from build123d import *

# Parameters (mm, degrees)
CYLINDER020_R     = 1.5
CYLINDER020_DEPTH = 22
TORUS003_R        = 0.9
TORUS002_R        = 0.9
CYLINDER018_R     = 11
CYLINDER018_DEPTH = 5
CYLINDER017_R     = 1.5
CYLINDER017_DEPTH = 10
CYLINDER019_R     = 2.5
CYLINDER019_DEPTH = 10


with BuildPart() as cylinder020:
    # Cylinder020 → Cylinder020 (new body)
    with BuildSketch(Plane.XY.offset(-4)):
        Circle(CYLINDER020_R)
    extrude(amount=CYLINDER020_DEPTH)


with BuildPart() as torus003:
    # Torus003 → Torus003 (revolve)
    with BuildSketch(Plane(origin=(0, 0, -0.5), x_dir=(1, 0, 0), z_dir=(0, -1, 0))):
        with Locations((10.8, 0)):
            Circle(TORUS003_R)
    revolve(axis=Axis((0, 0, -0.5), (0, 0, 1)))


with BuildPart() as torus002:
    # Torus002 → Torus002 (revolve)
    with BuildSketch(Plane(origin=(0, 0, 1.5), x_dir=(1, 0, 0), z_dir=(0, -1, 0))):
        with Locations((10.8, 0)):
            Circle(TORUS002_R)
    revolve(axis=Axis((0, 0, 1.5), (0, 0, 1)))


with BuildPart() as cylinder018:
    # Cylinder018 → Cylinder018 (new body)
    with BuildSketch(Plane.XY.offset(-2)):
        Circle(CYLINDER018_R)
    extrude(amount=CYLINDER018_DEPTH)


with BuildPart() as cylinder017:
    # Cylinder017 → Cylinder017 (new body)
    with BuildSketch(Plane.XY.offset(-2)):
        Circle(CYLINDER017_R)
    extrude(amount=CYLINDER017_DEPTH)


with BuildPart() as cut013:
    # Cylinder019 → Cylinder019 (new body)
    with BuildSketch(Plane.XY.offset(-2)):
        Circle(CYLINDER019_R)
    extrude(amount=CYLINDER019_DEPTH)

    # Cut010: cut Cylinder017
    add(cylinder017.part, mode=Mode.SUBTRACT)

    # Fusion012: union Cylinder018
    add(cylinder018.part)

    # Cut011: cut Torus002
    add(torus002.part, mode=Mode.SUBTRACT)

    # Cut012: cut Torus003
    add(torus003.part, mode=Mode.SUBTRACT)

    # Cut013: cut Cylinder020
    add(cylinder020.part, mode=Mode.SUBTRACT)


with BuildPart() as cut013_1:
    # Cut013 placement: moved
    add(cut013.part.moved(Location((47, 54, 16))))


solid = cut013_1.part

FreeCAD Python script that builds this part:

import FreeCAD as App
import Part
import Sketcher

V = App.Vector
Q = App.Units.Quantity

doc = App.newDocument("Part")
params = doc.addObject("Spreadsheet::Sheet", "Params")
for row, (alias, value) in enumerate([
    ("sketch1_diameter", "3 mm"),
    ("pad1_length", "22 mm"),
    ("sketch2_diameter", "1.8 mm"),
    ("revolution_angle", "360 deg"),
    ("sketch3_diameter", "1.8 mm"),
    ("revolution2_angle", "360 deg"),
    ("sketch4_diameter", "22 mm"),
    ("pad2_length", "5 mm"),
    ("sketch5_diameter", "3 mm"),
    ("pad3_length", "10 mm"),
    ("sketch6_diameter", "5 mm"),
    ("pad4_length", "10 mm"),
], start=1):
    params.set(f"A{row}", alias)
    params.set(f"B{row}", "=" + value)
    params.setAlias(f"B{row}", alias)

body = doc.addObject("PartDesign::Body", "Body")

# Sketch on XY plane
sketch1 = body.newObject("Sketcher::SketchObject", "Sketch")
sketch1.AttachmentSupport = (doc.getObject("XY_Plane"), [""])
sketch1.MapMode = "FlatFace"
sketch1.AttachmentOffset = App.Placement(V(0, 0, -4), App.Rotation())
sketch1.addGeometry(Part.Circle(V(0, 0, 0), V(0, 0, 1), 1.5), False)
sketch1.addConstraint(Sketcher.Constraint("Coincident", 0, 3, -1, 1))
sketch1.addConstraint(Sketcher.Constraint("Diameter", 0, Q("3 mm")))
sketch1.setExpression("Constraints[1]", "Params.sketch1_diameter")
pad1 = body.newObject("PartDesign::Pad", "Pad")
pad1.Profile = sketch1
pad1.setExpression("Length", "Params.pad1_length")
body2 = doc.addObject("PartDesign::Body", "Body001")

# Sketch on XZ plane
sketch2 = body2.newObject("Sketcher::SketchObject", "Sketch001")
sketch2.AttachmentSupport = (doc.getObject("XZ_Plane001"), [""])
sketch2.MapMode = "FlatFace"
sketch2.addGeometry(Part.Circle(V(10.8, -0.5, 0), V(0, 0, 1), 0.9), False)
sketch2.addConstraint(Sketcher.Constraint("Diameter", 0, Q("1.8 mm")))
sketch2.addConstraint(Sketcher.Constraint("DistanceX", -1, 1, 0, 3, Q("10.8 mm")))
sketch2.addConstraint(Sketcher.Constraint("DistanceY", 0, 3, -1, 1, Q("0.5 mm")))
sketch2.setExpression("Constraints[0]", "Params.sketch2_diameter")
revolution = body2.newObject("PartDesign::Revolution", "Revolution")
revolution.Profile = sketch2
revolution.ReferenceAxis = (sketch2, ["V_Axis"])
revolution.setExpression("Angle", "Params.revolution_angle")
body3 = doc.addObject("PartDesign::Body", "Body002")

# Sketch on XZ plane
sketch3 = body3.newObject("Sketcher::SketchObject", "Sketch002")
sketch3.AttachmentSupport = (doc.getObject("XZ_Plane002"), [""])
sketch3.MapMode = "FlatFace"
sketch3.addGeometry(Part.Circle(V(10.8, 1.5, 0), V(0, 0, 1), 0.9), False)
sketch3.addConstraint(Sketcher.Constraint("Diameter", 0, Q("1.8 mm")))
sketch3.addConstraint(Sketcher.Constraint("DistanceX", -1, 1, 0, 3, Q("10.8 mm")))
sketch3.addConstraint(Sketcher.Constraint("DistanceY", -1, 1, 0, 3, Q("1.5 mm")))
sketch3.setExpression("Constraints[0]", "Params.sketch3_diameter")
revolution2 = body3.newObject("PartDesign::Revolution", "Revolution001")
revolution2.Profile = sketch3
revolution2.ReferenceAxis = (sketch3, ["V_Axis"])
revolution2.setExpression("Angle", "Params.revolution2_angle")
body4 = doc.addObject("PartDesign::Body", "Body003")

# Sketch on XY plane
sketch4 = body4.newObject("Sketcher::SketchObject", "Sketch003")
sketch4.AttachmentSupport = (doc.getObject("XY_Plane003"), [""])
sketch4.MapMode = "FlatFace"
sketch4.AttachmentOffset = App.Placement(V(0, 0, -2), App.Rotation())
sketch4.addGeometry(Part.Circle(V(0, 0, 0), V(0, 0, 1), 11), False)
sketch4.addConstraint(Sketcher.Constraint("Coincident", 0, 3, -1, 1))
sketch4.addConstraint(Sketcher.Constraint("Diameter", 0, Q("22 mm")))
sketch4.setExpression("Constraints[1]", "Params.sketch4_diameter")
pad2 = body4.newObject("PartDesign::Pad", "Pad001")
pad2.Profile = sketch4
pad2.setExpression("Length", "Params.pad2_length")
body5 = doc.addObject("PartDesign::Body", "Body004")

# Sketch on XY plane
sketch5 = body5.newObject("Sketcher::SketchObject", "Sketch004")
sketch5.AttachmentSupport = (doc.getObject("XY_Plane004"), [""])
sketch5.MapMode = "FlatFace"
sketch5.AttachmentOffset = App.Placement(V(0, 0, -2), App.Rotation())
sketch5.addGeometry(Part.Circle(V(0, 0, 0), V(0, 0, 1), 1.5), False)
sketch5.addConstraint(Sketcher.Constraint("Coincident", 0, 3, -1, 1))
sketch5.addConstraint(Sketcher.Constraint("Diameter", 0, Q("3 mm")))
sketch5.setExpression("Constraints[1]", "Params.sketch5_diameter")
pad3 = body5.newObject("PartDesign::Pad", "Pad002")
pad3.Profile = sketch5
pad3.setExpression("Length", "Params.pad3_length")
body6 = doc.addObject("PartDesign::Body", "Body005")

# Sketch on XY plane
sketch6 = body6.newObject("Sketcher::SketchObject", "Sketch005")
sketch6.AttachmentSupport = (doc.getObject("XY_Plane005"), [""])
sketch6.MapMode = "FlatFace"
sketch6.AttachmentOffset = App.Placement(V(0, 0, -2), App.Rotation())
sketch6.addGeometry(Part.Circle(V(0, 0, 0), V(0, 0, 1), 2.5), False)
sketch6.addConstraint(Sketcher.Constraint("Coincident", 0, 3, -1, 1))
sketch6.addConstraint(Sketcher.Constraint("Diameter", 0, Q("5 mm")))
sketch6.setExpression("Constraints[1]", "Params.sketch6_diameter")
pad4 = body6.newObject("PartDesign::Pad", "Pad003")
pad4.Profile = sketch6
pad4.setExpression("Length", "Params.pad4_length")
doc.recompute()

boolean = body6.newObject("PartDesign::Boolean", "Boolean")
boolean.Type = "Cut"
boolean.addObjects([body5])
doc.recompute()

boolean2 = body6.newObject("PartDesign::Boolean", "Boolean001")
boolean2.Type = "Fuse"
boolean2.addObjects([body4])
doc.recompute()

boolean3 = body6.newObject("PartDesign::Boolean", "Boolean002")
boolean3.Type = "Cut"
boolean3.addObjects([body3])
doc.recompute()

boolean4 = body6.newObject("PartDesign::Boolean", "Boolean003")
boolean4.Type = "Cut"
boolean4.addObjects([body2])
doc.recompute()

boolean5 = body6.newObject("PartDesign::Boolean", "Boolean004")
boolean5.Type = "Cut"
boolean5.addObjects([body])
body7 = doc.addObject("PartDesign::Body", "Body006")
doc.recompute()

body6.Placement = App.Placement(V(47, 54, 16), App.Rotation(V(0, 0, 1), 0))
boolean6 = body7.newObject("PartDesign::Boolean", "Boolean005")
boolean6.Type = "Fuse"
boolean6.addObjects([body6])

doc.recompute()
